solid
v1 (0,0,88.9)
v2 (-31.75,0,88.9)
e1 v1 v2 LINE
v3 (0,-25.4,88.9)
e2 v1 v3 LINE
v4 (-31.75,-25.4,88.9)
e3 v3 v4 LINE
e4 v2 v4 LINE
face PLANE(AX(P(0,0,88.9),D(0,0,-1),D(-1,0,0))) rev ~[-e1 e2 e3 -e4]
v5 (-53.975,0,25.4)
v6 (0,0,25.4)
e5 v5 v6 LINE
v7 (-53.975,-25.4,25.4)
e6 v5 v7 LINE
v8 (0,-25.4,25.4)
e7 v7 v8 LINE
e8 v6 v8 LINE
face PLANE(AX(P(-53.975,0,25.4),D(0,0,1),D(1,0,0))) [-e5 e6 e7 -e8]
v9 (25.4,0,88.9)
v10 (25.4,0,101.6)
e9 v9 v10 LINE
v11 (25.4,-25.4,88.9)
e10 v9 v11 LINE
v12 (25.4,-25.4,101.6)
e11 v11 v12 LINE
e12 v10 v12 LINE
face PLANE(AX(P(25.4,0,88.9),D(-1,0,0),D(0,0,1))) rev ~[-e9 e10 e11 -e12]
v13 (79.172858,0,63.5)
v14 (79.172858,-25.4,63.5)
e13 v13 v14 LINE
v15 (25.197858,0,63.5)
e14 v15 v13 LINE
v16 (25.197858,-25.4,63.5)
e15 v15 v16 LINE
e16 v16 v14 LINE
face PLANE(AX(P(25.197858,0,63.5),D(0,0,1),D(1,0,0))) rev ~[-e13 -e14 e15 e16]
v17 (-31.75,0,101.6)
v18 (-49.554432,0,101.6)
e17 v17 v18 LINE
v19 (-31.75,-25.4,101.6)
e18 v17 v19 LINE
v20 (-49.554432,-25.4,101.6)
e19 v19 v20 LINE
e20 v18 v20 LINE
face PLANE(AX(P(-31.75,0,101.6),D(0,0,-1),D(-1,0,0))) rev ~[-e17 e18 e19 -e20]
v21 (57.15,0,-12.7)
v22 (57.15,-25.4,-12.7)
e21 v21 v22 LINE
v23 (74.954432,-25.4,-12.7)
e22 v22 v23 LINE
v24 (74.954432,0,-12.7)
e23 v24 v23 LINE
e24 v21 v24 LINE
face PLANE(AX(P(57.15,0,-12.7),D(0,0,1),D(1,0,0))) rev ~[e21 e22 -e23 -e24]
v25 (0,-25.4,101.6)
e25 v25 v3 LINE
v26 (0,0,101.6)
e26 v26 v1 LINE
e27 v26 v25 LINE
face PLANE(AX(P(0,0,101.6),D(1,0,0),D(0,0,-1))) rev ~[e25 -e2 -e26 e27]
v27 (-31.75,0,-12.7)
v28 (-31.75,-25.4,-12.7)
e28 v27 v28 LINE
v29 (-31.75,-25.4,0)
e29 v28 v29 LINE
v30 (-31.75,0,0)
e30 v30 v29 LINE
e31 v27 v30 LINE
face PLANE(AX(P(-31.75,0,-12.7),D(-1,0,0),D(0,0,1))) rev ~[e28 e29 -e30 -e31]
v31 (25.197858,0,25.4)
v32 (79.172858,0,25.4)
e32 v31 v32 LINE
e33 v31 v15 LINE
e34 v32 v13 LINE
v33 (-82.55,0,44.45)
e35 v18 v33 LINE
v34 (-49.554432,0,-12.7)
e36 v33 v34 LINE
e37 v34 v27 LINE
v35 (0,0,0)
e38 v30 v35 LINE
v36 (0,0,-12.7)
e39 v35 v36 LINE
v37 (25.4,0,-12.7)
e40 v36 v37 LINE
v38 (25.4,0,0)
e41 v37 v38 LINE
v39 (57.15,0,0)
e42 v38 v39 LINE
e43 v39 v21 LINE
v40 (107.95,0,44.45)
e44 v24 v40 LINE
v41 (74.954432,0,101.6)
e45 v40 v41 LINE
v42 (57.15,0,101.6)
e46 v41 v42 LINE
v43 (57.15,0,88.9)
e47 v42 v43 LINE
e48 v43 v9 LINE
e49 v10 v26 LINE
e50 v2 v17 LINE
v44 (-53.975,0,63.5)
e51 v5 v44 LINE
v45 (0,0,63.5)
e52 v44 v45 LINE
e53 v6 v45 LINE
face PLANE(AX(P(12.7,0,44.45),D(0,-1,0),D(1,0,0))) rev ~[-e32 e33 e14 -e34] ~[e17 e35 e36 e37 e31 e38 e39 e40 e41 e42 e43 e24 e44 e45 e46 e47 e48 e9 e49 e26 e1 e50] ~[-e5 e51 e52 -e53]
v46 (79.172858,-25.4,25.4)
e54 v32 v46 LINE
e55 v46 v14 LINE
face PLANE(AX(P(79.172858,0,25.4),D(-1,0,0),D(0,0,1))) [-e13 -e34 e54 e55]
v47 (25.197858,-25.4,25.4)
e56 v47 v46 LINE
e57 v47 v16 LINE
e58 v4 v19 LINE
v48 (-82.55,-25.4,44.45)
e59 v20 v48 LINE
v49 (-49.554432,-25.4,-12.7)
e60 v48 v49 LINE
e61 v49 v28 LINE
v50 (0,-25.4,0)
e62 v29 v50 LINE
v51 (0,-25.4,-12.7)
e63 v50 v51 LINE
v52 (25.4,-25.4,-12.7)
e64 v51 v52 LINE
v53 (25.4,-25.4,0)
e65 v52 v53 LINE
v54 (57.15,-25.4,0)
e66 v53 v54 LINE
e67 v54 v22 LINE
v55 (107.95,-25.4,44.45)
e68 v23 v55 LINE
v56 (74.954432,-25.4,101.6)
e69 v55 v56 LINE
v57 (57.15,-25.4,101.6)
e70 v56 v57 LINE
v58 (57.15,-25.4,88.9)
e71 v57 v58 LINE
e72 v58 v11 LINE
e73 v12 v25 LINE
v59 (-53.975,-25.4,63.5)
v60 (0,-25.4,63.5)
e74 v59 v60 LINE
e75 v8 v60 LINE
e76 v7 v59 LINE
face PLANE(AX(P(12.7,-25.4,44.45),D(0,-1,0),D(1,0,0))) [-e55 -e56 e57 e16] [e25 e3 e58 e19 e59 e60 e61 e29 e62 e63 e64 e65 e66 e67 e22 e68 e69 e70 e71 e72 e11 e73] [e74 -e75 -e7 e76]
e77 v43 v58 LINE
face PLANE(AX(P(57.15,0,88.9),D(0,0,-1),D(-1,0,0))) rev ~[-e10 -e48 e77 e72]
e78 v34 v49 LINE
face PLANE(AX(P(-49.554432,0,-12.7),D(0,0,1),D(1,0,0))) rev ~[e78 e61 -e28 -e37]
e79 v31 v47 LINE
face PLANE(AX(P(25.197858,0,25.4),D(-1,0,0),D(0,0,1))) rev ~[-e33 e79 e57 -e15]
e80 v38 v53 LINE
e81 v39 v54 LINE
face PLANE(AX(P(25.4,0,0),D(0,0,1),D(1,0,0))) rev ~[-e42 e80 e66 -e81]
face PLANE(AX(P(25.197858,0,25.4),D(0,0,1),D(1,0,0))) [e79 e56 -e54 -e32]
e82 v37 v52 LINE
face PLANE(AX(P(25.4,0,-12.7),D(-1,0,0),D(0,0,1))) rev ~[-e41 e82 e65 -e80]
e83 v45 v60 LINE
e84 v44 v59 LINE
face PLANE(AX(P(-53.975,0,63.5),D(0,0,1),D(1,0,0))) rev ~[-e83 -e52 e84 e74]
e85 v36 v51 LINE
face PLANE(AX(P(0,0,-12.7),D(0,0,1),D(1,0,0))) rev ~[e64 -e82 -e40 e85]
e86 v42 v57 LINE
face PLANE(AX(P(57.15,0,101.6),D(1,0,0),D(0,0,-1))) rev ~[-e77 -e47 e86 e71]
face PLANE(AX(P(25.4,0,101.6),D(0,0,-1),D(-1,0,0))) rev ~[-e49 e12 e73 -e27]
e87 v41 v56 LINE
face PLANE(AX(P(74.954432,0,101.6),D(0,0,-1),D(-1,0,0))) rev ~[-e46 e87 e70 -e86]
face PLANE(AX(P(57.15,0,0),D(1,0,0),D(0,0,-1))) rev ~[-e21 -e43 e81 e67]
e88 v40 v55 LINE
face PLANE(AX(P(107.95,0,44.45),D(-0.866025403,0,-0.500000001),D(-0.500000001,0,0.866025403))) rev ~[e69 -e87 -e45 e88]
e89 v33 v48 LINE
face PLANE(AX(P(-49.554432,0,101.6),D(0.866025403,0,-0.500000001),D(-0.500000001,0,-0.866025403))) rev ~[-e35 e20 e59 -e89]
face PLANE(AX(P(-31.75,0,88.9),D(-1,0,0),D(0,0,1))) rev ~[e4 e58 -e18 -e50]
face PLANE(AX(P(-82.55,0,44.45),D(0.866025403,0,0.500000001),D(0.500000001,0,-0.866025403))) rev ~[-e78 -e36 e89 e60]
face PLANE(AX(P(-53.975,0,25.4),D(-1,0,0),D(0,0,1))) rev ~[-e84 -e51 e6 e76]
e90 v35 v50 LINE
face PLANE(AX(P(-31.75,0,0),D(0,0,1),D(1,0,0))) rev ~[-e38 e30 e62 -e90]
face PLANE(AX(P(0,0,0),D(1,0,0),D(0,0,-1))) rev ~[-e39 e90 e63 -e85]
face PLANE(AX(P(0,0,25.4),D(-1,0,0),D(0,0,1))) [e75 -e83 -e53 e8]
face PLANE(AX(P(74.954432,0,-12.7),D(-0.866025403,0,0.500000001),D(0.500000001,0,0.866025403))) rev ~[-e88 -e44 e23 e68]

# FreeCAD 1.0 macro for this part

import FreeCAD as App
import Part
import Sketcher

V = App.Vector
Q = App.Units.Quantity

doc = App.newDocument("Part")
params = doc.addObject("Spreadsheet::Sheet", "Params")
for row, (alias, value) in enumerate([
    ("sketch1_width", "1 in"),
    ("sketch1_height", "0.5 in"),
    ("sketch1_height2", "1.5 in"),
    ("sketch1_width2", "1.25 in"),
    ("sketch1_width3", "2.125 in"),
    ("pad1_length", "1 in"),
], start=1):
    params.set(f"A{row}", alias)
    params.set(f"B{row}", "=" + value)
    params.setAlias(f"B{row}", alias)

body = doc.addObject("PartDesign::Body", "Body")

# Sketch on XZ plane
sketch1 = body.newObject("Sketcher::SketchObject", "Sketch")
sketch1.AttachmentSupport = (doc.getObject("XZ_Plane"), [""])
sketch1.MapMode = "FlatFace"
sketch1.addGeometry([
    Part.LineSegment(V(-32, 102, 0), V(-50, 102, 0)),  # 0
    Part.LineSegment(V(-50, 102, 0), V(-83, 44, 0)),  # 1
    Part.LineSegment(V(-83, 44, 0), V(-50, -13, 0)),  # 2
    Part.LineSegment(V(-50, -13, 0), V(-32, -13, 0)),  # 3
    Part.LineSegment(V(-32, -13, 0), V(-32, 0, 0)),  # 4
    Part.LineSegment(V(-32, 0, 0), V(0, 0, 0)),  # 5
    Part.LineSegment(V(0, 0, 0), V(0, -13, 0)),  # 6
    Part.LineSegment(V(0, -13, 0), V(25, -13, 0)),  # 7
    Part.LineSegment(V(25, -13, 0), V(25, 0, 0)),  # 8
    Part.LineSegment(V(25, 0, 0), V(57, 0, 0)),  # 9
    Part.LineSegment(V(57, 0, 0), V(57, -13, 0)),  # 10
    Part.LineSegment(V(57, -13, 0), V(75, -13, 0)),  # 11
    Part.LineSegment(V(75, -13, 0), V(108, 44, 0)),  # 12
    Part.LineSegment(V(108, 44, 0), V(75, 102, 0)),  # 13
    Part.LineSegment(V(75, 102, 0), V(57, 102, 0)),  # 14
    Part.LineSegment(V(57, 102, 0), V(57, 89, 0)),  # 15
    Part.LineSegment(V(57, 89, 0), V(25, 89, 0)),  # 16
    Part.LineSegment(V(25, 89, 0), V(25, 102, 0)),  # 17
    Part.LineSegment(V(25, 102, 0), V(0, 102, 0)),  # 18
    Part.LineSegment(V(0, 102, 0), V(0, 89, 0)),  # 19
    Part.LineSegment(V(0, 89, 0), V(-32, 89, 0)),  # 20
    Part.LineSegment(V(-32, 89, 0), V(-32, 102, 0)),  # 21
    Part.LineSegment(V(0, 25, 0), V(-54, 25, 0)),  # 22
    Part.LineSegment(V(-54, 25, 0), V(-54, 64, 0)),  # 23
    Part.LineSegment(V(-54, 64, 0), V(0, 64, 0)),  # 24
    Part.LineSegment(V(0, 64, 0), V(0, 25, 0)),  # 25
    Part.LineSegment(V(79, 25, 0), V(25, 25, 0)),  # 26
    Part.LineSegment(V(25, 25, 0), V(25, 64, 0)),  # 27
    Part.LineSegment(V(25, 64, 0), V(79, 64, 0)),  # 28
    Part.LineSegment(V(79, 64, 0), V(79, 25, 0)),  # 29
], False)
sketch1.addConstraint([
    Sketcher.Constraint("Coincident", 0, 2, 1, 1),
    Sketcher.Constraint("Coincident", 1, 2, 2, 1),
    Sketcher.Constraint("Coincident", 2, 2, 3, 1),
    Sketcher.Constraint("Coincident", 3, 2, 4, 1),
    Sketcher.Constraint("Coincident", 4, 2, 5, 1),
    Sketcher.Constraint("Coincident", 5, 2, 6, 1),
    Sketcher.Constraint("Coincident", 6, 2, 7, 1),
    Sketcher.Constraint("Coincident", 7, 2, 8, 1),
    Sketcher.Constraint("Coincident", 8, 2, 9, 1),
    Sketcher.Constraint("Coincident", 9, 2, 10, 1),
    Sketcher.Constraint("Coincident", 10, 2, 11, 1),
    Sketcher.Constraint("Coincident", 11, 2, 12, 1),
    Sketcher.Constraint("Coincident", 12, 2, 13, 1),
    Sketcher.Constraint("Coincident", 13, 2, 14, 1),
    Sketcher.Constraint("Coincident", 14, 2, 15, 1),
    Sketcher.Constraint("Coincident", 15, 2, 16, 1),
    Sketcher.Constraint("Coincident", 16, 2, 17, 1),
    Sketcher.Constraint("Coincident", 17, 2, 18, 1),
    Sketcher.Constraint("Coincident", 18, 2, 19, 1),
    Sketcher.Constraint("Coincident", 19, 2, 20, 1),
    Sketcher.Constraint("Coincident", 20, 2, 21, 1),
    Sketcher.Constraint("Coincident", 21, 2, 0, 1),
    Sketcher.Constraint("Coincident", 22, 2, 23, 1),
    Sketcher.Constraint("Coincident", 23, 2, 24, 1),
    Sketcher.Constraint("Coincident", 24, 2, 25, 1),
    Sketcher.Constraint("Coincident", 25, 2, 22, 1),
    Sketcher.Constraint("Coincident", 26, 2, 27, 1),
    Sketcher.Constraint("Coincident", 27, 2, 28, 1),
    Sketcher.Constraint("Coincident", 28, 2, 29, 1),
    Sketcher.Constraint("Coincident", 29, 2, 26, 1),
    Sketcher.Constraint("Horizontal", 0),
    Sketcher.Constraint("Horizontal", 3),
    Sketcher.Constraint("Vertical", 4),
    Sketcher.Constraint("Horizontal", 5),
    Sketcher.Constraint("Vertical", 6),
    Sketcher.Constraint("Horizontal", 7),
    Sketcher.Constraint("Vertical", 8),
    Sketcher.Constraint("Horizontal", 9),
    Sketcher.Constraint("Vertical", 10),
    Sketcher.Constraint("Horizontal", 11),
    Sketcher.Constraint("Horizontal", 14),
    Sketcher.Constraint("Vertical", 15),
    Sketcher.Constraint("Horizontal", 16),
    Sketcher.Constraint("Vertical", 17),
    Sketcher.Constraint("Horizontal", 18),
    Sketcher.Constraint("Vertical", 19),
    Sketcher.Constraint("Horizontal", 20),
    Sketcher.Constraint("Vertical", 21),
    Sketcher.Constraint("Horizontal", 22),
    Sketcher.Constraint("Vertical", 23),
    Sketcher.Constraint("Horizontal", 24),
    Sketcher.Constraint("Vertical", 25),
    Sketcher.Constraint("Horizontal", 26),
    Sketcher.Constraint("Vertical", 27),
    Sketcher.Constraint("Horizontal", 28),
    Sketcher.Constraint("Vertical", 29),
    Sketcher.Constraint("Coincident", 5, 2, -1, 1),
    Sketcher.Constraint("PointOnObject", 8, 2, -1),
    Sketcher.Constraint("PointOnObject", 18, 2, -2),
    Sketcher.Constraint("PointOnObject", 24, 2, -2),
    Sketcher.Constraint("Parallel", 1, 12),
    Sketcher.Constraint("Parallel", 2, 13),
    Sketcher.Constraint("Horizontal", 3, 2, 6, 2),
    Sketcher.Constraint("Horizontal", 7, 2, 10, 2),
    Sketcher.Constraint("Horizontal", 1, 2, 12, 2),
    Sketcher.Constraint("Horizontal", 0, 2, 13, 2),
    Sketcher.Constraint("Horizontal", 14, 2, 17, 2),
    Sketcher.Constraint("Horizontal", 16, 2, 19, 2),
    Sketcher.Constraint("Horizontal", 25, 2, 26, 2),
    Sketcher.Constraint("Horizontal", 24, 2, 27, 2),
    Sketcher.Constraint("Vertical", 0, 2, 2, 2),
    Sketcher.Constraint("Vertical", 11, 2, 13, 2),
    Sketcher.Constraint("Vertical", 10, 2, 14, 2),
    Sketcher.Constraint("Vertical", 8, 2, 16, 2),
    Sketcher.Constraint("Vertical", 4, 2, 20, 2),
    Sketcher.Constraint("Equal", 5, 9),
    Sketcher.Constraint("Equal", 3, 11),
    Sketcher.Constraint("Equal", 24, 26),
    Sketcher.Constraint("Equal", 10, 15),
    Sketcher.Constraint("DistanceX", 7, 1, 7, 2, Q("1 in")),
    Sketcher.Constraint("DistanceY", 4, 1, 4, 2, Q("0.5 in")),
    Sketcher.Constraint("DistanceY", 23, 1, 23, 2, Q("1.5 in")),
    Sketcher.Constraint("DistanceY", -1, 1, 0, 2, Q("4 in")),
    Sketcher.Constraint("DistanceY", -1, 1, 22, 2, Q("1 in")),
    Sketcher.Constraint("Angle", 1, Q("-120 deg")),
    Sketcher.Constraint("DistanceX", 1, 2, 3, 2, Q("2 in")),
    Sketcher.Constraint("DistanceX", 5, 1, 5, 2, Q("1.25 in")),
    Sketcher.Constraint("DistanceX", 22, 2, 22, 1, Q("2.125 in")),
    Sketcher.Constraint("DistanceX", -1, 1, 26, 2, Q("25.197858 mm")),
])
sketch1.setExpression("Constraints[79]", "Params.sketch1_width")
sketch1.setExpression("Constraints[80]", "Params.sketch1_height")
sketch1.setExpression("Constraints[81]", "Params.sketch1_height2")
sketch1.setExpression("Constraints[86]", "Params.sketch1_width2")
sketch1.setExpression("Constraints[87]", "Params.sketch1_width3")
pad1 = body.newObject("PartDesign::Pad", "Pad")
pad1.Profile = sketch1
pad1.setExpression("Length", "Params.pad1_length")

doc.recompute()
